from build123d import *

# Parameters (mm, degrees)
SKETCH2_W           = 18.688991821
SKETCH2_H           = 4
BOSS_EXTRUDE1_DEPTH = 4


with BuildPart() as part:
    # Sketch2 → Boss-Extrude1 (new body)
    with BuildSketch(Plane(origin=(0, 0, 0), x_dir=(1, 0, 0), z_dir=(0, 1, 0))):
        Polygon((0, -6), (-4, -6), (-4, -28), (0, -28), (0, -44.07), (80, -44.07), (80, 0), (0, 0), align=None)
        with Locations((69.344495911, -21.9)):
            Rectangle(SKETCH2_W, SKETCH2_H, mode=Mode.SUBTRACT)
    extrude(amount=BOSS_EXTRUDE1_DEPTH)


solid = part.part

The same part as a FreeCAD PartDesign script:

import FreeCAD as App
import Part
import Sketcher
Q = App.Units.Quantity


def add_polygon(sketch, points):
    """Adds a closed chain of lines whose ends are joined by coincident constraints."""
    first, n = sketch.GeometryCount, len(points)
    for a, b in zip(points, points[1:] + points[:1]):
        sketch.addGeometry(Part.LineSegment(App.Vector(*a, 0), App.Vector(*b, 0)), False)
    for i in range(n):
        sketch.addConstraint(Sketcher.Constraint("Coincident", first + i, 2, first + (i + 1) % n, 1))

doc = App.newDocument("Part")
body = doc.addObject("PartDesign::Body", "Body")

# Sketch on XZ plane
sketch1 = doc.addObject("Sketcher::SketchObject", "Sketch")
body.addObject(sketch1)
sketch1.AttachmentSupport = (doc.XZ_Plane, [""])
sketch1.MapMode = "FlatFace"
add_polygon(sketch1, [(0, 6), (-4, 6), (-4, 28), (0, 28), (0, 44.07), (80, 44.07), (80, 0), (0, 0)])  # lines 0-7
add_polygon(sketch1, [(78.688992, 23.9), (60, 23.9), (60, 19.9), (78.688992, 19.9)])  # lines 8-11
sketch1.addConstraint(Sketcher.Constraint("Horizontal", 0))
sketch1.addConstraint(Sketcher.Constraint("Vertical", 1))
sketch1.addConstraint(Sketcher.Constraint("Horizontal", 2))
sketch1.addConstraint(Sketcher.Constraint("Vertical", 3))
sketch1.addConstraint(Sketcher.Constraint("Horizontal", 4))
sketch1.addConstraint(Sketcher.Constraint("Vertical", 5))
sketch1.addConstraint(Sketcher.Constraint("Horizontal", 6))
sketch1.addConstraint(Sketcher.Constraint("Vertical", 7))
sketch1.addConstraint(Sketcher.Constraint("Horizontal", 8))
sketch1.addConstraint(Sketcher.Constraint("Vertical", 9))
sketch1.addConstraint(Sketcher.Constraint("Horizontal", 10))
sketch1.addConstraint(Sketcher.Constraint("Vertical", 11))
sketch1.addConstraint(Sketcher.Constraint("Coincident", 6, 2, -1, 1))
sketch1.addConstraint(Sketcher.Constraint("PointOnObject", 2, 2, -2))
sketch1.addConstraint(Sketcher.Constraint("Equal", 2, 9))
sketch1.addConstraint(Sketcher.Constraint("DistanceX", 0, 2, 0, 1, Q("4 mm")))
sketch1.addConstraint(Sketcher.Constraint("DistanceX", 4, 1, 4, 2, Q("80 mm")))
sketch1.addConstraint(Sketcher.Constraint("DistanceY", 1, 1, 1, 2, Q("22 mm")))
sketch1.addConstraint(Sketcher.Constraint("DistanceY", 7, 1, 7, 2, Q("6 mm")))
sketch1.addConstraint(Sketcher.Constraint("DistanceX", -1, 1, 8, 2, Q("60 mm")))
sketch1.addConstraint(Sketcher.Constraint("DistanceY", 3, 1, 3, 2, Q("16.07 mm")))
sketch1.addConstraint(Sketcher.Constraint("DistanceY", -1, 1, 8, 2, Q("23.9 mm")))
sketch1.addConstraint(Sketcher.Constraint("DistanceX", 8, 2, 8, 1, Q("18.688992 mm")))
pad1 = doc.addObject("PartDesign::Pad", "Pad")
body.addObject(pad1)
pad1.Profile = sketch1
pad1.Length = 4
pad1.Reversed = True

doc.recompute()
